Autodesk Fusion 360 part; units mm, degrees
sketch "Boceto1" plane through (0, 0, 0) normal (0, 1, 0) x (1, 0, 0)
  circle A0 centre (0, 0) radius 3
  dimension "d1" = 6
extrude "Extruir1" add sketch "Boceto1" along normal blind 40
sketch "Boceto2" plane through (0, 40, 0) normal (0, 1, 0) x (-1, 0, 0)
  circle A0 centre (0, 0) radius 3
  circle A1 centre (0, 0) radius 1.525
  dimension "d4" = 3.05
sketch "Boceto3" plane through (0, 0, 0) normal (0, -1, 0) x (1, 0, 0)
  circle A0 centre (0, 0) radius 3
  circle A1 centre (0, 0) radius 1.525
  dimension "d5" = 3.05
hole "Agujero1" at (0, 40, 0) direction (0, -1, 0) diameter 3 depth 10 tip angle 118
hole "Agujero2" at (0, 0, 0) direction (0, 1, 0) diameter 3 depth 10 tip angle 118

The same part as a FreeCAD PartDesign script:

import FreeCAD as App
import Part
import Sketcher
from FreeCAD import Vector

doc = App.newDocument("Part")
body = doc.addObject("PartDesign::Body", "Body")

# Sketch on XZ plane
sketch1 = body.newObject("Sketcher::SketchObject", "Sketch")
sketch1.AttachmentSupport = (doc.getObject("XZ_Plane"), [""])
sketch1.MapMode = "FlatFace"
sketch1.addGeometry(Part.Circle(Vector(0, 0, 0), Vector(0, 0, 1), 3), False)
sketch1.addConstraint(Sketcher.Constraint("Coincident", 0, 3, -1, 1))
sketch1.addConstraint(Sketcher.Constraint("Diameter", 0, 6.0))
pad1 = body.newObject("PartDesign::Pad", "Pad")
pad1.Profile = sketch1
pad1.Length = 40
pad1.Reversed = True

# Sketch on XZ plane
sketch2 = body.newObject("Sketcher::SketchObject", "Sketch001")
sketch2.AttachmentSupport = (doc.getObject("XZ_Plane"), [""])
sketch2.MapMode = "FlatFace"
sketch2.AttachmentOffset = App.Placement(Vector(0, 0, -40), App.Rotation())
sketch2.addGeometry(Part.Circle(Vector(0, 0, 0), Vector(0, 0, 1), 1.5), False)
sketch2.addConstraint(Sketcher.Constraint("Coincident", 0, 3, -1, 1))
sketch2.addConstraint(Sketcher.Constraint("Diameter", 0, 3.0))
doc.recompute()
hole = body.newObject("PartDesign::Hole", "Hole")
hole.Profile = sketch2
hole.ThreadType = "None"
hole.Diameter = 3
hole.DepthType = "Dimension"
hole.Depth = 10
hole.DrillPoint = "Angled"
hole.DrillPointAngle = 118
hole.Reversed = True

# Sketch on XZ plane
sketch3 = body.newObject("Sketcher::SketchObject", "Sketch002")
sketch3.AttachmentSupport = (doc.getObject("XZ_Plane"), [""])
sketch3.MapMode = "FlatFace"
sketch3.addGeometry(Part.Circle(Vector(0, 0, 0), Vector(0, 0, 1), 1.5), False)
sketch3.addConstraint(Sketcher.Constraint("Coincident", 0, 3, -1, 1))
sketch3.addConstraint(Sketcher.Constraint("Diameter", 0, 3.0))
doc.recompute()
hole2 = body.newObject("PartDesign::Hole", "Hole001")
hole2.Profile = sketch3
hole2.ThreadType = "None"
hole2.Diameter = 3
hole2.DepthType = "Dimension"
hole2.Depth = 10
hole2.DrillPoint = "Angled"
hole2.DrillPointAngle = 118

doc.recompute()
